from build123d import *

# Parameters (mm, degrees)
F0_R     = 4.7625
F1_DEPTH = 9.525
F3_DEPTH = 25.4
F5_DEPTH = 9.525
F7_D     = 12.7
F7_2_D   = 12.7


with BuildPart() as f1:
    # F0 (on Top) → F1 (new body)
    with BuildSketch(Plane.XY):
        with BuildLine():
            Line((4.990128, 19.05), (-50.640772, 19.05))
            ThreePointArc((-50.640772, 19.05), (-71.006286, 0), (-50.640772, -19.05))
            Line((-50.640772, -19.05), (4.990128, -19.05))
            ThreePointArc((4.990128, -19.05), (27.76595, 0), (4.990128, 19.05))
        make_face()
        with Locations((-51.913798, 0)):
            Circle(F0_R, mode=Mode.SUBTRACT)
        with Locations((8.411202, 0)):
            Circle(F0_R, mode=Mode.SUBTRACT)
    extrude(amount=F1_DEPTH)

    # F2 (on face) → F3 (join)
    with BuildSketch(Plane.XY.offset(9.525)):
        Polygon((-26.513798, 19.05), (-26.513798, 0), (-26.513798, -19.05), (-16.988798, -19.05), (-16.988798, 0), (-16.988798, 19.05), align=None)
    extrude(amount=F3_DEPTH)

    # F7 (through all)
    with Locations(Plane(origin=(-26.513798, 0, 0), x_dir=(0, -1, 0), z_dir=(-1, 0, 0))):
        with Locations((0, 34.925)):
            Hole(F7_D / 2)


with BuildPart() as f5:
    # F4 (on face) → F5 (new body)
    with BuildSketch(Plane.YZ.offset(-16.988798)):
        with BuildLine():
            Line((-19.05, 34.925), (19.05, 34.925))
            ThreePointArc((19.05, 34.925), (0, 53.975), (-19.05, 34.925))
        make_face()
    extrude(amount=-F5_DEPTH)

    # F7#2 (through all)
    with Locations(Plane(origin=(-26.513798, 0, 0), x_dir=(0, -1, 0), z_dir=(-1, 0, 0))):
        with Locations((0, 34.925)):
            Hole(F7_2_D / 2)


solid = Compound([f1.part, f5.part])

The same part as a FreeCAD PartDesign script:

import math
import FreeCAD as App
import Part
import Sketcher
Q = App.Units.Quantity


def add_polygon(sketch, points):
    """Adds a closed chain of lines whose ends are joined by coincident constraints."""
    first, n = sketch.GeometryCount, len(points)
    for a, b in zip(points, points[1:] + points[:1]):
        sketch.addGeometry(Part.LineSegment(App.Vector(*a, 0), App.Vector(*b, 0)), False)
    for i in range(n):
        sketch.addConstraint(Sketcher.Constraint("Coincident", first + i, 2, first + (i + 1) % n, 1))

doc = App.newDocument("Part")
body = doc.addObject("PartDesign::Body", "Body")

sketch1 = doc.addObject("Sketcher::SketchObject", "Sketch")
body.addObject(sketch1)
sketch1.AttachmentSupport = (doc.XY_Plane, [""])
sketch1.MapMode = "FlatFace"
sketch1.addGeometry(Part.LineSegment(App.Vector(4.990128, 19.05, 0), App.Vector(-50.640772, 19.05, 0)), False)
sketch1.addGeometry(Part.ArcOfCircle(Part.Circle(App.Vector(-51.913798, 0, 0), App.Vector(0, 0, 1), 19.092488), math.radians(86.176864), math.radians(273.823136)), False)
sketch1.addGeometry(Part.LineSegment(App.Vector(-50.640772, -19.05, 0), App.Vector(4.990128, -19.05, 0)), False)
sketch1.addGeometry(Part.ArcOfCircle(Part.Circle(App.Vector(8.411203, 0, 0), App.Vector(0, 0, 1), 19.354747), math.radians(-100.180883), math.radians(100.180883)), False)
sketch1.addGeometry(Part.Circle(App.Vector(-51.913798, 0, 0), App.Vector(0, 0, 1), 4.7625), False)
sketch1.addGeometry(Part.Circle(App.Vector(8.411202, 0, 0), App.Vector(0, 0, 1), 4.7625), False)
sketch1.addConstraint(Sketcher.Constraint("Coincident", 0, 2, 1, 1))
sketch1.addConstraint(Sketcher.Constraint("Coincident", 1, 2, 2, 1))
sketch1.addConstraint(Sketcher.Constraint("Coincident", 2, 2, 3, 1))
sketch1.addConstraint(Sketcher.Constraint("Coincident", 3, 2, 0, 1))
sketch1.addConstraint(Sketcher.Constraint("Horizontal", 0))
sketch1.addConstraint(Sketcher.Constraint("Horizontal", 2))
sketch1.addConstraint(Sketcher.Constraint("Coincident", 4, 3, 1, 3))
sketch1.addConstraint(Sketcher.Constraint("Coincident", 5, 3, 3, 3))
sketch1.addConstraint(Sketcher.Constraint("Equal", 4, 5))
sketch1.addConstraint(Sketcher.Constraint("Symmetric", 0, 2, 1, 2, -1))
sketch1.addConstraint(Sketcher.Constraint("PointOnObject", 3, 3, -1))
sketch1.addConstraint(Sketcher.Constraint("Diameter", 4, Q("0.375 in")))
sketch1.addConstraint(Sketcher.Constraint("DistanceY", 1, 2, 0, 2, Q("1.5 in")))
sketch1.addConstraint(Sketcher.Constraint("DistanceX", 1, 3, 3, 3, Q("2.375 in")))
sketch1.addConstraint(Sketcher.Constraint("DistanceX", 0, 2, 0, 1, 55.6309))
sketch1.addConstraint(Sketcher.Constraint("Radius", 1, 19.092488))
sketch1.addConstraint(Sketcher.Constraint("DistanceX", 1, 3, -1, 1, 51.913798))
pad1 = doc.addObject("PartDesign::Pad", "Pad")
body.addObject(pad1)
pad1.Profile = sketch1
pad1.Length = Q("0.375 in")

sketch2 = doc.addObject("Sketcher::SketchObject", "Sketch001")
body.addObject(sketch2)
sketch2.AttachmentSupport = (doc.XY_Plane, [""])
sketch2.MapMode = "FlatFace"
sketch2.AttachmentOffset = App.Placement(App.Vector(0, 0, 0.375 * 25.4), App.Rotation())
add_polygon(sketch2, [(-26.513798, 19.05), (-26.513798, -19.05), (-16.988798, -19.05), (-16.988798, 19.05)])
sketch2.addConstraint(Sketcher.Constraint("Vertical", 0))
sketch2.addConstraint(Sketcher.Constraint("Horizontal", 1))
sketch2.addConstraint(Sketcher.Constraint("Vertical", 2))
sketch2.addConstraint(Sketcher.Constraint("Horizontal", 3))
sketch2.addConstraint(Sketcher.Constraint("DistanceY", 0, 2, 0, 1, Q("1.5 in")))
sketch2.addConstraint(Sketcher.Constraint("DistanceX", 1, 1, 1, 2, Q("0.375 in")))
sketch2.addConstraint(Sketcher.Constraint("DistanceY", 0, 2, -1, 1, Q("0.75 in")))
sketch2.addConstraint(Sketcher.Constraint("DistanceX", 0, 2, -1, 1, 26.513798))
pad2 = doc.addObject("PartDesign::Pad", "Pad001")
body.addObject(pad2)
pad2.Profile = sketch2
pad2.Length = Q("1 in")

sketch3 = doc.addObject("Sketcher::SketchObject", "Sketch002")
body.addObject(sketch3)
sketch3.AttachmentSupport = (doc.YZ_Plane, [""])
sketch3.MapMode = "FlatFace"
sketch3.AttachmentOffset = App.Placement(App.Vector(0, 0, -26.513798), App.Rotation())
sketch3.addGeometry(Part.Circle(App.Vector(0, 34.925, 0), App.Vector(0, 0, 1), 6.35), False)
sketch3.addConstraint(Sketcher.Constraint("PointOnObject", 0, 3, -2))
sketch3.addConstraint(Sketcher.Constraint("Diameter", 0, Q("0.5 in")))
sketch3.addConstraint(Sketcher.Constraint("DistanceY", -1, 1, 0, 3, Q("1.375 in")))
doc.recompute()
hole = doc.addObject("PartDesign::Hole", "Hole")
body.addObject(hole)
hole.Profile = sketch3
hole.ThreadType = "None"
hole.Diameter = Q("0.5 in")
hole.DepthType = "ThroughAll"
hole.Reversed = True
body2 = doc.addObject("PartDesign::Body", "Body001")

sketch4 = doc.addObject("Sketcher::SketchObject", "Sketch003")
body2.addObject(sketch4)
sketch4.AttachmentSupport = (doc.getObject("YZ_Plane001"), [""])
sketch4.MapMode = "FlatFace"
sketch4.AttachmentOffset = App.Placement(App.Vector(0, 0, -16.988798), App.Rotation())
sketch4.addGeometry(Part.LineSegment(App.Vector(-19.05, 34.925, 0), App.Vector(19.05, 34.925, 0)), False)
sketch4.addGeometry(Part.ArcOfCircle(Part.Circle(App.Vector(0, 34.925, 0), App.Vector(0, 0, 1), 19.05), math.radians(0), math.radians(180)), False)
sketch4.addConstraint(Sketcher.Constraint("Coincident", 0, 1, 1, 2))
sketch4.addConstraint(Sketcher.Constraint("Coincident", 1, 1, 0, 2))
sketch4.addConstraint(Sketcher.Constraint("Horizontal", 0))
sketch4.addConstraint(Sketcher.Constraint("PointOnObject", 1, 3, -2))
sketch4.addConstraint(Sketcher.Constraint("Horizontal", 1, 3, 0, 1))
sketch4.addConstraint(Sketcher.Constraint("Radius", 1, Q("0.75 in")))
sketch4.addConstraint(Sketcher.Constraint("DistanceY", -1, 1, 1, 3, Q("1.375 in")))
pad3 = doc.addObject("PartDesign::Pad", "Pad002")
body2.addObject(pad3)
pad3.Profile = sketch4
pad3.Length = Q("0.375 in")
pad3.Reversed = True

sketch5 = doc.addObject("Sketcher::SketchObject", "Sketch004")
body2.addObject(sketch5)
sketch5.AttachmentSupport = (doc.getObject("YZ_Plane001"), [""])
sketch5.MapMode = "FlatFace"
sketch5.AttachmentOffset = App.Placement(App.Vector(0, 0, -26.513798), App.Rotation())
sketch5.addGeometry(Part.Circle(App.Vector(0, 34.925, 0), App.Vector(0, 0, 1), 6.35), False)
sketch5.addConstraint(Sketcher.Constraint("PointOnObject", 0, 3, -2))
sketch5.addConstraint(Sketcher.Constraint("Diameter", 0, Q("0.5 in")))
sketch5.addConstraint(Sketcher.Constraint("DistanceY", -1, 1, 0, 3, Q("1.375 in")))
doc.recompute()
hole2 = doc.addObject("PartDesign::Hole", "Hole001")
body2.addObject(hole2)
hole2.Profile = sketch5
hole2.ThreadType = "None"
hole2.Diameter = Q("0.5 in")
hole2.DepthType = "ThroughAll"
hole2.Reversed = True

doc.recompute()
